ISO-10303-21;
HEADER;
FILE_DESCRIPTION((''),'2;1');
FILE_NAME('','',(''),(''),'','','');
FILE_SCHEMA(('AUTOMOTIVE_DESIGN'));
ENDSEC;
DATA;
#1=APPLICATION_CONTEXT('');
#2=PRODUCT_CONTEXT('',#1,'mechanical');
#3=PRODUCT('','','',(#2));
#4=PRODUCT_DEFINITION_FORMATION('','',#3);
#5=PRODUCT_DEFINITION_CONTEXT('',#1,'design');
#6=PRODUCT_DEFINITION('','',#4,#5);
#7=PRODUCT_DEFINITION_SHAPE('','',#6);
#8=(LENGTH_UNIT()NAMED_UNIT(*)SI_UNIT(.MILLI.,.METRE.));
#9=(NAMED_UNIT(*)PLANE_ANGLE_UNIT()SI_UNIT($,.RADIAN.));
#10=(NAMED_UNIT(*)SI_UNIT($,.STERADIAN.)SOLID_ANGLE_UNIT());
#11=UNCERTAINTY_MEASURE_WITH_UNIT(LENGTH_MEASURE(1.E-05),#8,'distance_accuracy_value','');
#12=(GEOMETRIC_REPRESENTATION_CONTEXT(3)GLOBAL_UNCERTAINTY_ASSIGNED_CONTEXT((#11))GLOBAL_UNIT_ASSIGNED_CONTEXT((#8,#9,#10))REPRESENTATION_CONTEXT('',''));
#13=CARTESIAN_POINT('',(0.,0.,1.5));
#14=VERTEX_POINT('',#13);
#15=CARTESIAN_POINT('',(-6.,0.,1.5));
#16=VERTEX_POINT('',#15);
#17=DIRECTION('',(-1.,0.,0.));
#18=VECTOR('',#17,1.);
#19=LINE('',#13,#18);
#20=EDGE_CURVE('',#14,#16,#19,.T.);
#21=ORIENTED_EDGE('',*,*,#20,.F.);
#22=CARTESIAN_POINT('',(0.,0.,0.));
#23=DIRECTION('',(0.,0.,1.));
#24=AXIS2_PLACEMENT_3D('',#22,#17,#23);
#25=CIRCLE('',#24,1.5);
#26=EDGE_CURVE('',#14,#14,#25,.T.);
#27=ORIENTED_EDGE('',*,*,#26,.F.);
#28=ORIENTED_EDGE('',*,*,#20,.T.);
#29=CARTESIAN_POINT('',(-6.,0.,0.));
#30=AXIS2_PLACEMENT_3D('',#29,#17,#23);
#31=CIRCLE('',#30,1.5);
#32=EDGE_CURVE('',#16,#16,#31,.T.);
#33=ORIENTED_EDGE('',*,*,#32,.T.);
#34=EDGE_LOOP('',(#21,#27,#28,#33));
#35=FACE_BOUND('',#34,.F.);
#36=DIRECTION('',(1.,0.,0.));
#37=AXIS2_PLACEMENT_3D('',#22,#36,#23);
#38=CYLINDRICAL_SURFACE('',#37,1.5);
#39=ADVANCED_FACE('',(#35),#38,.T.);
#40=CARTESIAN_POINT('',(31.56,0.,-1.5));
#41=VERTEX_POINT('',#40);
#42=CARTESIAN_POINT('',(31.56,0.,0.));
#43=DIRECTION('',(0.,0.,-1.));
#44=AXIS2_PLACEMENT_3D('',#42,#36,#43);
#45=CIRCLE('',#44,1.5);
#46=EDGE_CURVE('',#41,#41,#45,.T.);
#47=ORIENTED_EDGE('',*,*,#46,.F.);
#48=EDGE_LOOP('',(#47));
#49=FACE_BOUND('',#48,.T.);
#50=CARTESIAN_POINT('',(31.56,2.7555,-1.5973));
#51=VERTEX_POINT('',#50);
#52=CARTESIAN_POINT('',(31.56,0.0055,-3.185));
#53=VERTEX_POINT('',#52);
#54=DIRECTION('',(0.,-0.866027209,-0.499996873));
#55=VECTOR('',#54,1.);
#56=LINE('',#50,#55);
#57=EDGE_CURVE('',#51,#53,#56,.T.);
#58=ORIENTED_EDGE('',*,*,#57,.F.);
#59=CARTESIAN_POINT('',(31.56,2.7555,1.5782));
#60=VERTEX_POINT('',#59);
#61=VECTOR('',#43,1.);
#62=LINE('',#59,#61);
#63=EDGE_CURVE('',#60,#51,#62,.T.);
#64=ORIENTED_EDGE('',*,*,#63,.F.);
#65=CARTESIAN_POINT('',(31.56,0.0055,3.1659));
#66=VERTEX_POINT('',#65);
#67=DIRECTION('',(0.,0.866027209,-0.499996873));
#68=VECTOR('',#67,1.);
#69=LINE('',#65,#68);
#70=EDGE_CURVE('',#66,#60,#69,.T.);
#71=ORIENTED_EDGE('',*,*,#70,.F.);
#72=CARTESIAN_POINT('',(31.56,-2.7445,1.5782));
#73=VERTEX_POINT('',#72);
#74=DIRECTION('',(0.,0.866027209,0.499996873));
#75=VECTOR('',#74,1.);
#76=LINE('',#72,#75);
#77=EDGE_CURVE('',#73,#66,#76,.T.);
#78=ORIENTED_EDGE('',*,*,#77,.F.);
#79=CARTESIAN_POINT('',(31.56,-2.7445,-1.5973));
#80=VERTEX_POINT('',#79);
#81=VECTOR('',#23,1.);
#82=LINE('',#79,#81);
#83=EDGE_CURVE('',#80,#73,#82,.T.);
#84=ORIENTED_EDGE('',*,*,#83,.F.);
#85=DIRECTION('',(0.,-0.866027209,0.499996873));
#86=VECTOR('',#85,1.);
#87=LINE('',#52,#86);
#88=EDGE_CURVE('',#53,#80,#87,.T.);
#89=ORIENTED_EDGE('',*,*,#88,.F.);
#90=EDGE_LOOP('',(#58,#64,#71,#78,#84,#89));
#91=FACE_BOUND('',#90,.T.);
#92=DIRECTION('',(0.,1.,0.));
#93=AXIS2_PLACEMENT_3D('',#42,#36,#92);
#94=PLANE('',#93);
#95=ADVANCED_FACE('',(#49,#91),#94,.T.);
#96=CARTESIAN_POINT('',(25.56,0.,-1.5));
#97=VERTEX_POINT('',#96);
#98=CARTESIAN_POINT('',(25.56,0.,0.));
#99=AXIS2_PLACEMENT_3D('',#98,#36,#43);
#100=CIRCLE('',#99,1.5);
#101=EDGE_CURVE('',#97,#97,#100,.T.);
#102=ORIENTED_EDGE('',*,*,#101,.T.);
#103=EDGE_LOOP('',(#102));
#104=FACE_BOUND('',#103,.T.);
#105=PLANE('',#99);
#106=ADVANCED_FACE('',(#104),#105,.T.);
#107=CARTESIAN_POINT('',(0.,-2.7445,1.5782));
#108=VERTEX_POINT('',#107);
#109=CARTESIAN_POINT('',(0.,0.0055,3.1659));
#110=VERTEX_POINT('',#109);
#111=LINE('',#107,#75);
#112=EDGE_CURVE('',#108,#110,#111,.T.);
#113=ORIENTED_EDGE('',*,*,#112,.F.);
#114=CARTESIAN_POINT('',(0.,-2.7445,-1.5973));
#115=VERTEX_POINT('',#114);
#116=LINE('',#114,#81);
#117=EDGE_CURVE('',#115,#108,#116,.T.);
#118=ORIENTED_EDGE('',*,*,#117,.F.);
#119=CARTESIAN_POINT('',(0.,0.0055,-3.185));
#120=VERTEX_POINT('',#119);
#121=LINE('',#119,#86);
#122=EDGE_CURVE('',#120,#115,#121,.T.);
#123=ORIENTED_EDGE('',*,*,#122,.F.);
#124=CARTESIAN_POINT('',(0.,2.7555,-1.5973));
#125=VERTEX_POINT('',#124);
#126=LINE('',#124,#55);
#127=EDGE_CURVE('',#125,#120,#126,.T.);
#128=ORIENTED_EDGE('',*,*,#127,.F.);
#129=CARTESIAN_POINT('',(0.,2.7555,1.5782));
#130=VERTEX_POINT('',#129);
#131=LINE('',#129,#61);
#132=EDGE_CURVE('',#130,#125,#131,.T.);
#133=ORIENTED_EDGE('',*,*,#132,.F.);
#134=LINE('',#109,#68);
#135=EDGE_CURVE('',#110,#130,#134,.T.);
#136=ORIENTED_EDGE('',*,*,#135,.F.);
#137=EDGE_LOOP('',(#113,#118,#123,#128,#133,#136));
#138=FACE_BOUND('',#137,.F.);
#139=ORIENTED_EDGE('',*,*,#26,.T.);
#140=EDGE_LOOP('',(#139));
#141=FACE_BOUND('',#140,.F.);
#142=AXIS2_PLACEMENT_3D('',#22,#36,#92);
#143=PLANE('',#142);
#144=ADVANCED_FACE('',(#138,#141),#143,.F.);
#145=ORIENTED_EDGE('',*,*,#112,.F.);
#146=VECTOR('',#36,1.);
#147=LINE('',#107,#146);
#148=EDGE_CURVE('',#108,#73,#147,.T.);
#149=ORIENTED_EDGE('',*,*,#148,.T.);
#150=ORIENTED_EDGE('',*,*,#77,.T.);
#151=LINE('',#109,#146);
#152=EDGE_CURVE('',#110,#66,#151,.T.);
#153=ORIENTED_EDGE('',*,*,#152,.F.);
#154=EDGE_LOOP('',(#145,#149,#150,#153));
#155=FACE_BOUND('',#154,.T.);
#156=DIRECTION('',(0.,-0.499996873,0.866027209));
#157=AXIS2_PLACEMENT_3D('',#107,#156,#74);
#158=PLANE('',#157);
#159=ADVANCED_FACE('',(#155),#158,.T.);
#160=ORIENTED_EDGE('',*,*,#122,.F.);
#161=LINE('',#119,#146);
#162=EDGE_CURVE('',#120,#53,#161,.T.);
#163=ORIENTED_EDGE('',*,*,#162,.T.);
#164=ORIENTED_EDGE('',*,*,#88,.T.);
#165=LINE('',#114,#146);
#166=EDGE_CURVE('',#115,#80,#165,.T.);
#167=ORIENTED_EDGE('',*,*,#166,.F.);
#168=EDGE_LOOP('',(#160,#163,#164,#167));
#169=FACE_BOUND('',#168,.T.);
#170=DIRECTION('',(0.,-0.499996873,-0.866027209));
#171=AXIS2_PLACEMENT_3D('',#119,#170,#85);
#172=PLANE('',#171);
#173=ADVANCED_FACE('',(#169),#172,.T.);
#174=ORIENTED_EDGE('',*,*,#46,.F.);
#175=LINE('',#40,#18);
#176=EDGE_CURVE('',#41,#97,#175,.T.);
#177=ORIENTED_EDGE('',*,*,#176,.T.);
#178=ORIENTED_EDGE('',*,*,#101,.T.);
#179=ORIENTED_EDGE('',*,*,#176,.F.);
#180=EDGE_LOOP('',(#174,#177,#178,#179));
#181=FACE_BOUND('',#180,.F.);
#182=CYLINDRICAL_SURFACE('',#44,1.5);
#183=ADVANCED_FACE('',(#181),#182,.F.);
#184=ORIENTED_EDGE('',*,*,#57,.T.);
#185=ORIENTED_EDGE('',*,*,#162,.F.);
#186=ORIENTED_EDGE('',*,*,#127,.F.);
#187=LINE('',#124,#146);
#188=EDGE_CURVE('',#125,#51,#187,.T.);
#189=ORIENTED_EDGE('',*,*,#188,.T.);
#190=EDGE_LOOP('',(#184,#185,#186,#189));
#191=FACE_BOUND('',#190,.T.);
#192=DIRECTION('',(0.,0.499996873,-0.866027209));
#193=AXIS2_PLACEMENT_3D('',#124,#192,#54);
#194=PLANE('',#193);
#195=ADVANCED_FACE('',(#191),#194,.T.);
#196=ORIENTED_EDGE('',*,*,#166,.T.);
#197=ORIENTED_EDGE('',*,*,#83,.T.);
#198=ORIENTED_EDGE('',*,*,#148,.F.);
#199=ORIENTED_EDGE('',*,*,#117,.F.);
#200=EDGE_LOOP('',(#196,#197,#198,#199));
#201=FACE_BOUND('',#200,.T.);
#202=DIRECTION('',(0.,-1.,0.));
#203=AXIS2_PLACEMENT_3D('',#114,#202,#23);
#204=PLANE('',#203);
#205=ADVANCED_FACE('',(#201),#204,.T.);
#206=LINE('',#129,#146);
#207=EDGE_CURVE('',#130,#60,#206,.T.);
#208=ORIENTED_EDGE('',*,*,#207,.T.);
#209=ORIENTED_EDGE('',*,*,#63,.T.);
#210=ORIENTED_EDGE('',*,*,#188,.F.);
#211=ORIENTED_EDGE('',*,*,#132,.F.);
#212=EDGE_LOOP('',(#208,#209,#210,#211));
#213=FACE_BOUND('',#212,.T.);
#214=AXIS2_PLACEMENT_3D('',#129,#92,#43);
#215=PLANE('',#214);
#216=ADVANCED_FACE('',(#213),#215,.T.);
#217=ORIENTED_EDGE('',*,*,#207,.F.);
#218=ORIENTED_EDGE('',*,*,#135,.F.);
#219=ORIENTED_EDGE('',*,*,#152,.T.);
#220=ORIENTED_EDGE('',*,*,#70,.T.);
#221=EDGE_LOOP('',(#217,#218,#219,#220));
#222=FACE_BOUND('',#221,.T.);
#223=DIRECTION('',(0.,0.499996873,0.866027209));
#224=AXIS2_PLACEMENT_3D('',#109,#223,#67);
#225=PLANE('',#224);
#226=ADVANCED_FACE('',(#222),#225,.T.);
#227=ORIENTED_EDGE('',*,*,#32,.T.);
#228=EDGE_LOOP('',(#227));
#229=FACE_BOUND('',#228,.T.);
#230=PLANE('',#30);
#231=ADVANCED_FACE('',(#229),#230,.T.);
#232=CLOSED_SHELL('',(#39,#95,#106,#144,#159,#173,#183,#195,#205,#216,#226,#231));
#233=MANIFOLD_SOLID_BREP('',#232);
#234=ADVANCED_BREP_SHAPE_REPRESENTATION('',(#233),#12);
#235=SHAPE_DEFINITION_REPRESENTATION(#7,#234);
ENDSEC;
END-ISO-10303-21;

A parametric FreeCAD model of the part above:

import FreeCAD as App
import Part
import Sketcher
from FreeCAD import Vector
Q = App.Units.Quantity

doc = App.newDocument("Part")
body = doc.addObject("PartDesign::Body", "Body")

# Sketch on YZ plane
sketch1 = body.newObject("Sketcher::SketchObject", "Sketch")
sketch1.AttachmentSupport = (doc.getObject("YZ_Plane"), [""])
sketch1.MapMode = "FlatFace"
sketch1.addGeometry(Part.LineSegment(Vector(2.7555, 1.5782, 0), Vector(0.0055, 3.1659, 0)), False)
sketch1.addGeometry(Part.LineSegment(Vector(0.0055, 3.1659, 0), Vector(-2.7445, 1.5782, 0)), False)
sketch1.addGeometry(Part.LineSegment(Vector(-2.7445, 1.5782, 0), Vector(-2.7445, -1.5973, 0)), False)
sketch1.addGeometry(Part.LineSegment(Vector(-2.7445, -1.5973, 0), Vector(0.0055, -3.185, 0)), False)
sketch1.addGeometry(Part.LineSegment(Vector(0.0055, -3.185, 0), Vector(2.7555, -1.5973, 0)), False)
sketch1.addGeometry(Part.LineSegment(Vector(2.7555, -1.5973, 0), Vector(2.7555, 1.5782, 0)), False)
sketch1.addConstraint(Sketcher.Constraint("Coincident", 0, 2, 1, 1))
sketch1.addConstraint(Sketcher.Constraint("Coincident", 1, 2, 2, 1))
sketch1.addConstraint(Sketcher.Constraint("Coincident", 2, 2, 3, 1))
sketch1.addConstraint(Sketcher.Constraint("Coincident", 3, 2, 4, 1))
sketch1.addConstraint(Sketcher.Constraint("Coincident", 4, 2, 5, 1))
sketch1.addConstraint(Sketcher.Constraint("Coincident", 5, 2, 0, 1))
sketch1.addConstraint(Sketcher.Constraint("Vertical", 2))
sketch1.addConstraint(Sketcher.Constraint("Vertical", 5))
sketch1.addConstraint(Sketcher.Constraint("Parallel", 0, 3))
sketch1.addConstraint(Sketcher.Constraint("Parallel", 1, 4))
sketch1.addConstraint(Sketcher.Constraint("Horizontal", 2, 2, 4, 2))
sketch1.addConstraint(Sketcher.Constraint("Horizontal", 1, 2, 5, 2))
sketch1.addConstraint(Sketcher.Constraint("Vertical", 0, 2, 3, 2))
sketch1.addConstraint(Sketcher.Constraint("DistanceX", 2, 2, 4, 2, Q("5.5 mm")))
sketch1.addConstraint(Sketcher.Constraint("Angle", 0, Q("150.0002 deg")))
sketch1.addConstraint(Sketcher.Constraint("DistanceY", 2, 2, 2, 1, Q("3.1755 mm")))
sketch1.addConstraint(Sketcher.Constraint("DistanceY", -1, 1, 0, 2, Q("3.166 mm")))
sketch1.addConstraint(Sketcher.Constraint("DistanceX", -1, 1, 0, 2, Q("0.0055 mm")))
pad1 = body.newObject("PartDesign::Pad", "Pad")
pad1.Profile = sketch1
pad1.Length = 31.56

# Sketch on YZ plane
sketch2 = body.newObject("Sketcher::SketchObject", "Sketch001")
sketch2.AttachmentSupport = (doc.getObject("YZ_Plane"), [""])
sketch2.MapMode = "FlatFace"
sketch2.addGeometry(Part.Circle(Vector(0, 0, 0), Vector(0, 0, 1), 1.5), False)
sketch2.addConstraint(Sketcher.Constraint("Coincident", 0, 3, -1, 1))
sketch2.addConstraint(Sketcher.Constraint("Diameter", 0, Q("3 mm")))
pad2 = body.newObject("PartDesign::Pad", "Pad001")
pad2.Profile = sketch2
pad2.Length = 6
pad2.Reversed = True

# Sketch on YZ plane
sketch3 = body.newObject("Sketcher::SketchObject", "Sketch002")
sketch3.AttachmentSupport = (doc.getObject("YZ_Plane"), [""])
sketch3.MapMode = "FlatFace"
sketch3.AttachmentOffset = App.Placement(Vector(0, 0, 31.56), App.Rotation())
sketch3.addGeometry(Part.Circle(Vector(0, 0, 0), Vector(0, 0, 1), 1.5), False)
sketch3.addConstraint(Sketcher.Constraint("Coincident", 0, 3, -1, 1))
sketch3.addConstraint(Sketcher.Constraint("Diameter", 0, Q("3 mm")))
pocket1 = body.newObject("PartDesign::Pocket", "Pocket")
pocket1.Profile = sketch3
pocket1.Length = 6

doc.recompute()
